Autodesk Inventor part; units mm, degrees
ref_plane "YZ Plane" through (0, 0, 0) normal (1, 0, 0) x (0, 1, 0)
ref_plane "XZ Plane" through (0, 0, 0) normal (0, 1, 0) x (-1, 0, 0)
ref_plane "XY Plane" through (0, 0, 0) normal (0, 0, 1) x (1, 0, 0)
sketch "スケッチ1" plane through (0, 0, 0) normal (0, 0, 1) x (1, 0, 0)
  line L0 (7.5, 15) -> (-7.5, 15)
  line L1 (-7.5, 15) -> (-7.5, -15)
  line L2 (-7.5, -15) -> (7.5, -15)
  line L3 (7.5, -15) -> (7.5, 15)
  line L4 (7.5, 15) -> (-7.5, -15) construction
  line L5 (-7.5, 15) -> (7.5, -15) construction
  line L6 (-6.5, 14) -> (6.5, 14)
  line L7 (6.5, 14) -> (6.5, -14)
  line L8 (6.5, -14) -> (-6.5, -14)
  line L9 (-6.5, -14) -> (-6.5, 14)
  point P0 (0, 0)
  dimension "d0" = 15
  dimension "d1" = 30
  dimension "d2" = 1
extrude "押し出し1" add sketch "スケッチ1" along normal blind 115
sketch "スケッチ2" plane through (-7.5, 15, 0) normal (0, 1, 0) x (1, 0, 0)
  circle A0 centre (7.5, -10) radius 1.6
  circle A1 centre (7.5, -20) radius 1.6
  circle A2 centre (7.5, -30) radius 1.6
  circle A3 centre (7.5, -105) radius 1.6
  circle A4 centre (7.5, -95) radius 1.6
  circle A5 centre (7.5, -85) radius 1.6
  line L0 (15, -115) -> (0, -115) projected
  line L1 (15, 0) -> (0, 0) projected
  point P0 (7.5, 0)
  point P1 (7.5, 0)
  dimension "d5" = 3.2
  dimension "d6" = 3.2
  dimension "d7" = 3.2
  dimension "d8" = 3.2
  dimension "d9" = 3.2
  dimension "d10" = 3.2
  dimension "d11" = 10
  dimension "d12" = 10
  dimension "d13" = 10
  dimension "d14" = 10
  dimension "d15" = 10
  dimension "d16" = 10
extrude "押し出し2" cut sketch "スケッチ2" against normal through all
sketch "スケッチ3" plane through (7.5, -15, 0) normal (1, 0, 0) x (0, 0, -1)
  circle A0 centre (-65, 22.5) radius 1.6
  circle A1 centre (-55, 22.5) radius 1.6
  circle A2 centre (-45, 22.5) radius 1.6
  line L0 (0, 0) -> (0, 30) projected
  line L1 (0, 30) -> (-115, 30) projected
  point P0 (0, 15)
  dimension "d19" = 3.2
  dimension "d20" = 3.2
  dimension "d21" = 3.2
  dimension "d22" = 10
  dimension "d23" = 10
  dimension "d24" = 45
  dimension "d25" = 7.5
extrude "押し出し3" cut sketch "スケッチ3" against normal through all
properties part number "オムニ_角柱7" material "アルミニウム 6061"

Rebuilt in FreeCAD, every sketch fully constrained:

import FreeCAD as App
import Part
import Sketcher
from FreeCAD import Vector

doc = App.newDocument("Part")
body = doc.addObject("PartDesign::Body", "Body")

# Sketch on XY plane
sketch1 = doc.addObject("Sketcher::SketchObject", "Sketch")
body.addObject(sketch1)
sketch1.AttachmentSupport = (doc.XY_Plane, [""])
sketch1.MapMode = "FlatFace"
sketch1.addGeometry(Part.LineSegment(Vector(8, -15, 0), Vector(8, 15, 0)), False)
sketch1.addGeometry(Part.LineSegment(Vector(8, 15, 0), Vector(-8, 15, 0)), False)
sketch1.addGeometry(Part.LineSegment(Vector(-8, 15, 0), Vector(-8, -15, 0)), False)
sketch1.addGeometry(Part.LineSegment(Vector(-8, -15, 0), Vector(8, -15, 0)), False)
sketch1.addGeometry(Part.LineSegment(Vector(-6, -14, 0), Vector(-6, 14, 0)), False)
sketch1.addGeometry(Part.LineSegment(Vector(-6, 14, 0), Vector(6, 14, 0)), False)
sketch1.addGeometry(Part.LineSegment(Vector(6, 14, 0), Vector(6, -14, 0)), False)
sketch1.addGeometry(Part.LineSegment(Vector(6, -14, 0), Vector(-6, -14, 0)), False)
sketch1.addConstraint(Sketcher.Constraint("Coincident", 0, 2, 1, 1))
sketch1.addConstraint(Sketcher.Constraint("Coincident", 1, 2, 2, 1))
sketch1.addConstraint(Sketcher.Constraint("Coincident", 2, 2, 3, 1))
sketch1.addConstraint(Sketcher.Constraint("Coincident", 3, 2, 0, 1))
sketch1.addConstraint(Sketcher.Constraint("Coincident", 4, 2, 5, 1))
sketch1.addConstraint(Sketcher.Constraint("Coincident", 5, 2, 6, 1))
sketch1.addConstraint(Sketcher.Constraint("Coincident", 6, 2, 7, 1))
sketch1.addConstraint(Sketcher.Constraint("Coincident", 7, 2, 4, 1))
sketch1.addConstraint(Sketcher.Constraint("Vertical", 0))
sketch1.addConstraint(Sketcher.Constraint("Horizontal", 1))
sketch1.addConstraint(Sketcher.Constraint("Vertical", 2))
sketch1.addConstraint(Sketcher.Constraint("Horizontal", 3))
sketch1.addConstraint(Sketcher.Constraint("Vertical", 4))
sketch1.addConstraint(Sketcher.Constraint("Horizontal", 5))
sketch1.addConstraint(Sketcher.Constraint("Vertical", 6))
sketch1.addConstraint(Sketcher.Constraint("Horizontal", 7))
sketch1.addConstraint(Sketcher.Constraint("Symmetric", 0, 2, 2, 2, -1, 1))
sketch1.addConstraint(Sketcher.Constraint("Symmetric", 4, 2, 6, 2, -1, 1))
sketch1.addConstraint(Sketcher.Constraint("DistanceX", 1, 2, 1, 1, 15.0))
sketch1.addConstraint(Sketcher.Constraint("DistanceY", 0, 1, 0, 2, 30.0))
sketch1.addConstraint(Sketcher.Constraint("DistanceX", 1, 2, 4, 2, 1.0))
sketch1.addConstraint(Sketcher.Constraint("DistanceY", 4, 2, 1, 2, 1.0))
pad1 = doc.addObject("PartDesign::Pad", "Pad")
body.addObject(pad1)
pad1.Profile = sketch1
pad1.Length = 115

# Sketch on XZ plane
sketch2 = doc.addObject("Sketcher::SketchObject", "Sketch001")
body.addObject(sketch2)
sketch2.AttachmentSupport = (doc.XZ_Plane, [""])
sketch2.MapMode = "FlatFace"
sketch2.AttachmentOffset = App.Placement(Vector(0, 0, -15), App.Rotation())
sketch2.addGeometry(Part.Circle(Vector(0, 10, 0), Vector(0, 0, 1), 1.6), False)
sketch2.addGeometry(Part.Circle(Vector(0, 20, 0), Vector(0, 0, 1), 1.6), False)
sketch2.addGeometry(Part.Circle(Vector(0, 30, 0), Vector(0, 0, 1), 1.6), False)
sketch2.addGeometry(Part.Circle(Vector(0, 105, 0), Vector(0, 0, 1), 1.6), False)
sketch2.addGeometry(Part.Circle(Vector(0, 95, 0), Vector(0, 0, 1), 1.6), False)
sketch2.addGeometry(Part.Circle(Vector(0, 85, 0), Vector(0, 0, 1), 1.6), False)
sketch2.addConstraint(Sketcher.Constraint("Equal", 0, 1))
sketch2.addConstraint(Sketcher.Constraint("Equal", 1, 2))
sketch2.addConstraint(Sketcher.Constraint("Equal", 2, 3))
sketch2.addConstraint(Sketcher.Constraint("Equal", 3, 4))
sketch2.addConstraint(Sketcher.Constraint("Equal", 4, 5))
sketch2.addConstraint(Sketcher.Constraint("PointOnObject", 0, 3, -2))
sketch2.addConstraint(Sketcher.Constraint("PointOnObject", 1, 3, -2))
sketch2.addConstraint(Sketcher.Constraint("PointOnObject", 2, 3, -2))
sketch2.addConstraint(Sketcher.Constraint("PointOnObject", 3, 3, -2))
sketch2.addConstraint(Sketcher.Constraint("PointOnObject", 4, 3, -2))
sketch2.addConstraint(Sketcher.Constraint("PointOnObject", 5, 3, -2))
sketch2.addConstraint(Sketcher.Constraint("Diameter", 0, 3.2))
sketch2.addConstraint(Sketcher.Constraint("DistanceY", -1, 1, 0, 3, 10.0))
sketch2.addConstraint(Sketcher.Constraint("DistanceY", 0, 3, 1, 3, 10.0))
sketch2.addConstraint(Sketcher.Constraint("DistanceY", 1, 3, 2, 3, 10.0))
sketch2.addConstraint(Sketcher.Constraint("DistanceY", 4, 3, 3, 3, 10.0))
sketch2.addConstraint(Sketcher.Constraint("DistanceY", 5, 3, 4, 3, 10.0))
sketch2.addConstraint(Sketcher.Constraint("DistanceY", -1, 1, 3, 3, 105.0))
pocket1 = doc.addObject("PartDesign::Pocket", "Pocket")
body.addObject(pocket1)
pocket1.Profile = sketch2
pocket1.Type = "ThroughAll"
pocket1.Reversed = True

# Sketch on YZ plane
sketch3 = doc.addObject("Sketcher::SketchObject", "Sketch002")
body.addObject(sketch3)
sketch3.AttachmentSupport = (doc.YZ_Plane, [""])
sketch3.MapMode = "FlatFace"
sketch3.AttachmentOffset = App.Placement(Vector(0, 0, 7.5), App.Rotation())
sketch3.addGeometry(Part.Circle(Vector(7.5, 65, 0), Vector(0, 0, 1), 1.6), False)
sketch3.addGeometry(Part.Circle(Vector(7.5, 55, 0), Vector(0, 0, 1), 1.6), False)
sketch3.addGeometry(Part.Circle(Vector(7.5, 45, 0), Vector(0, 0, 1), 1.6), False)
sketch3.addConstraint(Sketcher.Constraint("Equal", 0, 1))
sketch3.addConstraint(Sketcher.Constraint("Equal", 1, 2))
sketch3.addConstraint(Sketcher.Constraint("Vertical", 0, 3, 1, 3))
sketch3.addConstraint(Sketcher.Constraint("Vertical", 1, 3, 2, 3))
sketch3.addConstraint(Sketcher.Constraint("Diameter", 0, 3.2))
sketch3.addConstraint(Sketcher.Constraint("DistanceY", -1, 1, 2, 3, 45.0))
sketch3.addConstraint(Sketcher.Constraint("DistanceY", 1, 3, 0, 3, 10.0))
sketch3.addConstraint(Sketcher.Constraint("DistanceY", 2, 3, 1, 3, 10.0))
sketch3.addConstraint(Sketcher.Constraint("DistanceX", -1, 1, 0, 3, 7.5))
pocket2 = doc.addObject("PartDesign::Pocket", "Pocket001")
body.addObject(pocket2)
pocket2.Profile = sketch3
pocket2.Type = "ThroughAll"

doc.recompute()
